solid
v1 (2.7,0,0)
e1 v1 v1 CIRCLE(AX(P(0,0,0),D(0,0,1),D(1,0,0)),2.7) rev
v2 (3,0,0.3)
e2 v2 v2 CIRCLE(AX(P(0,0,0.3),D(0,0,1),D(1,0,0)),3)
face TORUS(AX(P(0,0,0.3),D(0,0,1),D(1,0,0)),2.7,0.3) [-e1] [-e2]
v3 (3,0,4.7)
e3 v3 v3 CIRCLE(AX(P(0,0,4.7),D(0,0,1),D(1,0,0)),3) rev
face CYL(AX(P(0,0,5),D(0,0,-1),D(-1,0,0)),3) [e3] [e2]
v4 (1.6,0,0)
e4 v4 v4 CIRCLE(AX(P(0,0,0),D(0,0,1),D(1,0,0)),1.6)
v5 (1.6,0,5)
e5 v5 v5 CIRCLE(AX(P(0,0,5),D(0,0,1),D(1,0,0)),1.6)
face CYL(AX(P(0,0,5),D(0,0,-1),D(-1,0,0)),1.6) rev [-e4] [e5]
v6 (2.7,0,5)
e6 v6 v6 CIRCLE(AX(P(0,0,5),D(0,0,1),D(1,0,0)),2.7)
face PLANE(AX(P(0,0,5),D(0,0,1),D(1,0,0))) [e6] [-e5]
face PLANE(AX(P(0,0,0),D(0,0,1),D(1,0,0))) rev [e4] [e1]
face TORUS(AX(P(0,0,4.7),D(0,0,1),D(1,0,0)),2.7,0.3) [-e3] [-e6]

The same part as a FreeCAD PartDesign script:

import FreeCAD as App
import Part
import Sketcher
Q = App.Units.Quantity


def edges_at(feature, points):
    """Names of the edges that pass closest to the given points."""
    edges = feature.Shape.Edges
    near = lambda p: min(range(len(edges)), key=lambda i: edges[i].distToShape(Part.Vertex(*p))[0])
    return sorted({f"Edge{near(p) + 1}" for p in points})

doc = App.newDocument("Part")
body = doc.addObject("PartDesign::Body", "Body")

# Sketch on XY plane
sketch1 = doc.addObject("Sketcher::SketchObject", "Sketch")
body.addObject(sketch1)
sketch1.AttachmentSupport = (doc.XY_Plane, [""])
sketch1.MapMode = "FlatFace"
sketch1.addGeometry([
    Part.Circle(App.Vector(0, 0, 0), App.Vector(0, 0, 1), 3),
    Part.Circle(App.Vector(0, 0, 0), App.Vector(0, 0, 1), 1.6),
], False)
sketch1.addConstraint([
    Sketcher.Constraint("Coincident", 0, 3, -1, 1),
    Sketcher.Constraint("Coincident", 1, 3, -1, 1),
    Sketcher.Constraint("Diameter", 0, Q("6 mm")),
    Sketcher.Constraint("Diameter", 1, Q("3.2 mm")),
])
pad1 = doc.addObject("PartDesign::Pad", "Pad")
body.addObject(pad1)
pad1.Profile = sketch1
pad1.Length = 5
doc.recompute()

fillet = doc.addObject("PartDesign::Fillet", "Fillet")
body.addObject(fillet)
fillet.Base = (pad1, edges_at(pad1, [(-3, 0, 0), (-3, 0, 5)]))
fillet.Radius = 0.3

doc.recompute()
